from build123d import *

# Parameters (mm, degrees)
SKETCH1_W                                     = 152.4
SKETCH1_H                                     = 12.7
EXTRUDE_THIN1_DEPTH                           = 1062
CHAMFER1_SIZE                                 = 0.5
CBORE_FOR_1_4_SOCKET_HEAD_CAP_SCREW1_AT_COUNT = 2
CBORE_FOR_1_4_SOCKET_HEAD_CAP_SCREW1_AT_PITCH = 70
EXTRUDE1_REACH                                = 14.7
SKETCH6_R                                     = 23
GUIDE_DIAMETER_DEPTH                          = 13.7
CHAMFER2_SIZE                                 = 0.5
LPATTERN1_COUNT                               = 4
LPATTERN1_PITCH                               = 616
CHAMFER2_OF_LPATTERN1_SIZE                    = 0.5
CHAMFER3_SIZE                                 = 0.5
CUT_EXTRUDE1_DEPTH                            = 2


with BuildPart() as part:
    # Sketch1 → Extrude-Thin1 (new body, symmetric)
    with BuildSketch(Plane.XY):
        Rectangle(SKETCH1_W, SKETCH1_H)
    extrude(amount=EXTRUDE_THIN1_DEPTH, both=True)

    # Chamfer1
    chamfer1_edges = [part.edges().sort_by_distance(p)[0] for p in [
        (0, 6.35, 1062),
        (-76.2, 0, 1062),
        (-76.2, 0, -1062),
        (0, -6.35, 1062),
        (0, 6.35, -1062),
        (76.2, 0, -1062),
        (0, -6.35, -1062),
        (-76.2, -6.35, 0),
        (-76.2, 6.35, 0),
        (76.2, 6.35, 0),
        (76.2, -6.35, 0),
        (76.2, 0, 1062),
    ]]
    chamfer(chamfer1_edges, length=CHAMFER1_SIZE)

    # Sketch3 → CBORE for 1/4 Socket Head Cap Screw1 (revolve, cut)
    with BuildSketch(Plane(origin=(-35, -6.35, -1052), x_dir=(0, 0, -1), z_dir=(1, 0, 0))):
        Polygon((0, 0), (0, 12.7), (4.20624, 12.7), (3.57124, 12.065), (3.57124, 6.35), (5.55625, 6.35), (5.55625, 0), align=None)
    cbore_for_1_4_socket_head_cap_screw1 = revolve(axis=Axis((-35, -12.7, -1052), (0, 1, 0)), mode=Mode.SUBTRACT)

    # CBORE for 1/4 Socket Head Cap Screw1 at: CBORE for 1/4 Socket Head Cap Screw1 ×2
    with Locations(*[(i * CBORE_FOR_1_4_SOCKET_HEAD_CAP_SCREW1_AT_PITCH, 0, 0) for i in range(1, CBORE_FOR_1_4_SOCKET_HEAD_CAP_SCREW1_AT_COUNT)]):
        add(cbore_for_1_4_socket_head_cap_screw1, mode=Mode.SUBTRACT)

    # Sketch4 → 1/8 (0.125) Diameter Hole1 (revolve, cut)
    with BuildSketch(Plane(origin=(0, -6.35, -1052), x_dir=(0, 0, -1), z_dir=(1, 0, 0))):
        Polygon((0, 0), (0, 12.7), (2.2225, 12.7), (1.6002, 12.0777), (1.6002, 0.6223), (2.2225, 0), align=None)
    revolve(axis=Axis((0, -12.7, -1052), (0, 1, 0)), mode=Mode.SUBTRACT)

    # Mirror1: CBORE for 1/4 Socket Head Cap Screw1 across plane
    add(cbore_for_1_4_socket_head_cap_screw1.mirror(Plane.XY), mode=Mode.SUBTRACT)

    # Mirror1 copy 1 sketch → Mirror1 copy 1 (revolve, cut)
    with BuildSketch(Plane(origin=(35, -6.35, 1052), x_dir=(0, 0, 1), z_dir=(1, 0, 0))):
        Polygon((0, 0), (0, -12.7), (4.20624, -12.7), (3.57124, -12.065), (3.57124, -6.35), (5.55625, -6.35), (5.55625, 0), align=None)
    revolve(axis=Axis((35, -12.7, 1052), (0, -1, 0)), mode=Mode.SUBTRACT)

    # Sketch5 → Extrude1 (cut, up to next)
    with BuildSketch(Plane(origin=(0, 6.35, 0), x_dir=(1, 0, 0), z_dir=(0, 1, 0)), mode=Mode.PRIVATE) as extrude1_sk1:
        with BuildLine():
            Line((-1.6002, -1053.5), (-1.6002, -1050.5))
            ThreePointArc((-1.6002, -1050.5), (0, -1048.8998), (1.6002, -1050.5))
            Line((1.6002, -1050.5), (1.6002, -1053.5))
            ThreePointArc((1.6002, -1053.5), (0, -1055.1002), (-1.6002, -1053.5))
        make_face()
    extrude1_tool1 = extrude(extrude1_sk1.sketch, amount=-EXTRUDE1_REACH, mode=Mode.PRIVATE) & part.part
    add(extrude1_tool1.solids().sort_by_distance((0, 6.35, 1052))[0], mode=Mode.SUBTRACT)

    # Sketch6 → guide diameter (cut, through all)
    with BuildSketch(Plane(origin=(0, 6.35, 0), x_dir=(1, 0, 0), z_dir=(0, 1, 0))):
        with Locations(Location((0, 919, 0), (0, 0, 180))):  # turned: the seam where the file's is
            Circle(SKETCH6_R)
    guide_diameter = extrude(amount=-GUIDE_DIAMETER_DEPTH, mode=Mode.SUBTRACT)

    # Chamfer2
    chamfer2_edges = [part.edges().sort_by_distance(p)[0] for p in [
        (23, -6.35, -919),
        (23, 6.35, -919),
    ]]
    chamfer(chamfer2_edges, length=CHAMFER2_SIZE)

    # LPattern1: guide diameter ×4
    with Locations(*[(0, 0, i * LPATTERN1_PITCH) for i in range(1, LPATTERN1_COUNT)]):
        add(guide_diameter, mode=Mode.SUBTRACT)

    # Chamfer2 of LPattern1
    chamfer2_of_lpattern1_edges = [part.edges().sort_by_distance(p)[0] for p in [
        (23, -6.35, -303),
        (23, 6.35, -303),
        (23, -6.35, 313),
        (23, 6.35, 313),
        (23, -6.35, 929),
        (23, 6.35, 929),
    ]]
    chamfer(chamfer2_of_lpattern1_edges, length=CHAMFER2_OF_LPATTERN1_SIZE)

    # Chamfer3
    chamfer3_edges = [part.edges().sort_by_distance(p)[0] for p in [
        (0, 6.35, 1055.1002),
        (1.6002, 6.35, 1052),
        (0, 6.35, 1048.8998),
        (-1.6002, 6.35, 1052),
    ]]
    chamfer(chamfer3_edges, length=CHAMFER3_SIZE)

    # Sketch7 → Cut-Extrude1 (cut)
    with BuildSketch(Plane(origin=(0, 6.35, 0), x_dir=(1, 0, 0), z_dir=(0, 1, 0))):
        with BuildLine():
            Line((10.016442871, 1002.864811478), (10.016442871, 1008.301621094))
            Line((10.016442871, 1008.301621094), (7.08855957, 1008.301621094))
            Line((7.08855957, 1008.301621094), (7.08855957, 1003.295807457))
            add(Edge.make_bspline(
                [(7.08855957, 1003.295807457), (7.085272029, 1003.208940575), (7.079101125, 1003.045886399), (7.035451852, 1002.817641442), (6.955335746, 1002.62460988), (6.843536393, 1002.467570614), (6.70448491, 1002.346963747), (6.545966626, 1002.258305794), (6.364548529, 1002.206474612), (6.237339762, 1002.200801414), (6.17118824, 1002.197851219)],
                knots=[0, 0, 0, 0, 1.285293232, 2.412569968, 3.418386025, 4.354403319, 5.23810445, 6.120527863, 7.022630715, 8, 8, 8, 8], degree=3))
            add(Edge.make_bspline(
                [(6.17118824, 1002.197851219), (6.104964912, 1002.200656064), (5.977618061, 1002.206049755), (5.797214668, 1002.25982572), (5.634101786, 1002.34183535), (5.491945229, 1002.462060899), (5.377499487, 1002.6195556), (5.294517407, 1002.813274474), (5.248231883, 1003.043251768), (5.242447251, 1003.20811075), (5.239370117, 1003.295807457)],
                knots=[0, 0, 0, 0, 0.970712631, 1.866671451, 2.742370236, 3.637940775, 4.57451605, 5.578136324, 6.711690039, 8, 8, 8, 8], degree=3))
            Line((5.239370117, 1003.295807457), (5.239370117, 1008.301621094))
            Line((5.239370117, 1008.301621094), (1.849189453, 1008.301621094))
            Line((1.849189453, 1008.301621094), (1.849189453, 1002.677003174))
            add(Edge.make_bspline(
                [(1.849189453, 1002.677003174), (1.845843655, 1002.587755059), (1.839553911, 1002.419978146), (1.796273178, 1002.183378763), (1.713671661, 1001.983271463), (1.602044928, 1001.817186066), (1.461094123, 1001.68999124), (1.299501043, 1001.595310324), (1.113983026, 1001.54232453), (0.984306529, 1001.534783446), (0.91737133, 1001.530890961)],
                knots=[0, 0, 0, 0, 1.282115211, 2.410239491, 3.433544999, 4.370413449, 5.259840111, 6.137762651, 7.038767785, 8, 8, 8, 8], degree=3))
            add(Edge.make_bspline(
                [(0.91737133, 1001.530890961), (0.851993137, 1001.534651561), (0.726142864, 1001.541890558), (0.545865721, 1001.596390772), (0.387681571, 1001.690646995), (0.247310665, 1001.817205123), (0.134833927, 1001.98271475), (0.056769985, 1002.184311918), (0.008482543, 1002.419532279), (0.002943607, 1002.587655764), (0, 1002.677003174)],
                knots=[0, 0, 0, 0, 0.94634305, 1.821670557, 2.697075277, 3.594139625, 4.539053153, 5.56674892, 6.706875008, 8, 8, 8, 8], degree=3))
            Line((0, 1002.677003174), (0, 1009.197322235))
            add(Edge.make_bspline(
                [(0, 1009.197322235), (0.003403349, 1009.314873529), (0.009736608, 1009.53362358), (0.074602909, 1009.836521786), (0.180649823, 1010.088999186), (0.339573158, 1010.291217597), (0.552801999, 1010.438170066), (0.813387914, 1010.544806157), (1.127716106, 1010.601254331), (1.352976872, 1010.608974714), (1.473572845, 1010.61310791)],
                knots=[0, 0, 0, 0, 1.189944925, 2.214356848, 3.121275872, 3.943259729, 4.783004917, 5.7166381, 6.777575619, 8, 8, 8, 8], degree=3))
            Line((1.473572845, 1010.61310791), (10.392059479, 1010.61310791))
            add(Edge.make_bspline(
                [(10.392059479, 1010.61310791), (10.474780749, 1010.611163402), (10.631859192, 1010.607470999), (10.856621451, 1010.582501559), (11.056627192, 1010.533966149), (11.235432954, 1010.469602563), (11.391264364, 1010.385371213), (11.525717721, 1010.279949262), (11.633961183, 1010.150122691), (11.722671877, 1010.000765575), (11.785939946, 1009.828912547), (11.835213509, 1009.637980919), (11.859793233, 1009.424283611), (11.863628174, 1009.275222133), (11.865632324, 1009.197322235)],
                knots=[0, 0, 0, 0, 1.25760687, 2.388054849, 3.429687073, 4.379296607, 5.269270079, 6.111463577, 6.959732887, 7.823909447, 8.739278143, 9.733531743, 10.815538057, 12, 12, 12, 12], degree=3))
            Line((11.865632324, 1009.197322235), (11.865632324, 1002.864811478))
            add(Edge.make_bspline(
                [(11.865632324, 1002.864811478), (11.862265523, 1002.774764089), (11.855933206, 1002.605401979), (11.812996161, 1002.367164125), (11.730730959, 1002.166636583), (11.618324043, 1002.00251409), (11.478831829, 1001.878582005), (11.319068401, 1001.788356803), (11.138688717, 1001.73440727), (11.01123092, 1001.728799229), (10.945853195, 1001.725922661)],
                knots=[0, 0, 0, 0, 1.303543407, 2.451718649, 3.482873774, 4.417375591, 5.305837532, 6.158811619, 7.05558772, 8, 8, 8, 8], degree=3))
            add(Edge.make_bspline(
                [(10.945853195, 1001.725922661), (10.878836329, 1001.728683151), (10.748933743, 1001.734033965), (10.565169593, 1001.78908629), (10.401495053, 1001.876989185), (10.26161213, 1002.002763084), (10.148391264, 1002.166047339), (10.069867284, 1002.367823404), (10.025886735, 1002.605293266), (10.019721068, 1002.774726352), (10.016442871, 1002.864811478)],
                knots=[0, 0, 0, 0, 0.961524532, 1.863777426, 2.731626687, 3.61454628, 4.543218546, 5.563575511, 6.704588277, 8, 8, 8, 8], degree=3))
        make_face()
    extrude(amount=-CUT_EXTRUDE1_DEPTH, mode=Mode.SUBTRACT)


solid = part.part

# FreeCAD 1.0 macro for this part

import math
import FreeCAD as App
import Part
import Sketcher
Q = App.Units.Quantity


def edges_at(feature, points):
    """Names of the edges that pass closest to the given points."""
    edges = feature.Shape.Edges
    near = lambda p: min(range(len(edges)), key=lambda i: edges[i].distToShape(Part.Vertex(*p))[0])
    return sorted({f"Edge{near(p) + 1}" for p in points})


def add_polygon(sketch, points):
    """Adds a closed chain of lines whose ends are joined by coincident constraints."""
    first, n = sketch.GeometryCount, len(points)
    for a, b in zip(points, points[1:] + points[:1]):
        sketch.addGeometry(Part.LineSegment(App.Vector(*a, 0), App.Vector(*b, 0)), False)
    for i in range(n):
        sketch.addConstraint(Sketcher.Constraint("Coincident", first + i, 2, first + (i + 1) % n, 1))

doc = App.newDocument("Part")
body = doc.addObject("PartDesign::Body", "Body")

sketch1 = doc.addObject("Sketcher::SketchObject", "Sketch")
body.addObject(sketch1)
sketch1.AttachmentSupport = (doc.XY_Plane, [""])
sketch1.MapMode = "FlatFace"
add_polygon(sketch1, [(-76, 6), (-76, -6), (76, -6), (76, 6)])
sketch1.addConstraint(Sketcher.Constraint("Vertical", 0))
sketch1.addConstraint(Sketcher.Constraint("Horizontal", 1))
sketch1.addConstraint(Sketcher.Constraint("Vertical", 2))
sketch1.addConstraint(Sketcher.Constraint("Horizontal", 3))
sketch1.addConstraint(Sketcher.Constraint("Symmetric", 0, 2, 2, 2, -1, 1))
sketch1.addConstraint(Sketcher.Constraint("DistanceX", 1, 1, 1, 2, Q("6 in")))
sketch1.addConstraint(Sketcher.Constraint("DistanceY", 0, 2, 0, 1, Q("0.5 in")))
pad1 = doc.addObject("PartDesign::Pad", "Pad")
body.addObject(pad1)
pad1.Profile = sketch1
pad1.Length = 2124
pad1.Midplane = True
doc.recompute()

chamfer = doc.addObject("PartDesign::Chamfer", "Chamfer")
body.addObject(chamfer)
chamfer.Base = (pad1, ["Edge1"])
chamfer.UseAllEdges = True
chamfer.Size = 0.5

sketch2 = doc.addObject("Sketcher::SketchObject", "Sketch001")
body.addObject(sketch2)
sketch2.AttachmentSupport = (doc.YZ_Plane, [""])
sketch2.MapMode = "FlatFace"
sketch2.AttachmentOffset = App.Placement(App.Vector(0, 0, -35), App.Rotation())
add_polygon(sketch2, [(6.3, -1052), (-6.3, -1052), (-6.3, -1057.6), (0, -1057.6), (0, -1055.6), (5.7, -1055.6), (6.3, -1056.2)])
sketch2.addGeometry(Part.LineSegment(App.Vector(-6.3, -1052, 0), App.Vector(6.3, -1052, 0)), True)
sketch2.addConstraint(Sketcher.Constraint("Horizontal", 0))
sketch2.addConstraint(Sketcher.Constraint("Vertical", 1))
sketch2.addConstraint(Sketcher.Constraint("Horizontal", 2))
sketch2.addConstraint(Sketcher.Constraint("Vertical", 3))
sketch2.addConstraint(Sketcher.Constraint("Horizontal", 4))
sketch2.addConstraint(Sketcher.Constraint("Vertical", 6))
sketch2.addConstraint(Sketcher.Constraint("Horizontal", 7))
sketch2.addConstraint(Sketcher.Constraint("Coincident", 7, 1, 0, 2))
sketch2.addConstraint(Sketcher.Constraint("PointOnObject", 2, 2, -2))
sketch2.addConstraint(Sketcher.Constraint("Vertical", 5, 2, 7, 2))
sketch2.addConstraint(Sketcher.Constraint("DistanceX", 0, 2, 0, 1, Q("0.5 in")))
sketch2.addConstraint(Sketcher.Constraint("Angle", 5, Q("-45 deg")))
sketch2.addConstraint(Sketcher.Constraint("DistanceX", 2, 1, 2, 2, Q("0.25 in")))
sketch2.addConstraint(Sketcher.Constraint("DistanceX", 4, 1, 4, 2, Q("0.225 in")))
sketch2.addConstraint(Sketcher.Constraint("DistanceY", 1, 2, 1, 1, Q("0.21875 in")))
sketch2.addConstraint(Sketcher.Constraint("DistanceY", 6, 1, 6, 2, Q("0.1656 in")))
sketch2.addConstraint(Sketcher.Constraint("DistanceY", 0, 2, -1, 1, Q("1052 mm")))
groove = doc.addObject("PartDesign::Groove", "Groove")
body.addObject(groove)
groove.Profile = sketch2
groove.ReferenceAxis = (sketch2, ["Axis0"])
groove.Angle = 360
doc.recompute()

linearpattern = doc.addObject("PartDesign::LinearPattern", "LinearPattern")
body.addObject(linearpattern)
linearpattern.Originals = [groove]
linearpattern.Direction = (doc.X_Axis, [""])
linearpattern.Mode = "offset"
linearpattern.Offset = 70
linearpattern.Occurrences = 2
body.Tip = linearpattern

sketch3 = doc.addObject("Sketcher::SketchObject", "Sketch002")
body.addObject(sketch3)
sketch3.AttachmentSupport = (doc.YZ_Plane, [""])
sketch3.MapMode = "FlatFace"
add_polygon(sketch3, [(6.3, -1052), (-6.3, -1052), (-6.3, -1054.2), (-5.7, -1053.6), (5.7, -1053.6), (6.3, -1054.2)])
sketch3.addGeometry(Part.LineSegment(App.Vector(-6.3, -1052, 0), App.Vector(6.3, -1052, 0)), True)
sketch3.addConstraint(Sketcher.Constraint("Horizontal", 0))
sketch3.addConstraint(Sketcher.Constraint("Vertical", 1))
sketch3.addConstraint(Sketcher.Constraint("Horizontal", 3))
sketch3.addConstraint(Sketcher.Constraint("Vertical", 5))
sketch3.addConstraint(Sketcher.Constraint("Horizontal", 6))
sketch3.addConstraint(Sketcher.Constraint("Coincident", 6, 1, 0, 2))
sketch3.addConstraint(Sketcher.Constraint("Symmetric", 1, 2, 4, 2, -2))
sketch3.addConstraint(Sketcher.Constraint("Perpendicular", 2, 4))
sketch3.addConstraint(Sketcher.Constraint("Vertical", 4, 2, 6, 2))
sketch3.addConstraint(Sketcher.Constraint("Equal", 2, 4))
sketch3.addConstraint(Sketcher.Constraint("DistanceX", 0, 2, 0, 1, Q("0.5 in")))
sketch3.addConstraint(Sketcher.Constraint("DistanceX", 3, 1, 3, 2, Q("0.451 in")))
sketch3.addConstraint(Sketcher.Constraint("DistanceY", 1, 2, 1, 1, Q("0.0875 in")))
sketch3.addConstraint(Sketcher.Constraint("DistanceY", 0, 2, -1, 1, Q("1052 mm")))
groove2 = doc.addObject("PartDesign::Groove", "Groove001")
body.addObject(groove2)
groove2.Profile = sketch3
groove2.ReferenceAxis = (sketch3, ["Axis0"])
groove2.Angle = 360
doc.recompute()

mirrored = doc.addObject("PartDesign::Mirrored", "Mirrored")
body.addObject(mirrored)
mirrored.Originals = [groove]
mirrored.MirrorPlane = (doc.XY_Plane, [""])
body.Tip = mirrored

sketch4 = doc.addObject("Sketcher::SketchObject", "Sketch003")
body.addObject(sketch4)
sketch4.AttachmentSupport = (doc.YZ_Plane, [""])
sketch4.MapMode = "FlatFace"
sketch4.AttachmentOffset = App.Placement(App.Vector(0, 0, 35), App.Rotation())
add_polygon(sketch4, [(-6.3, 1052), (6.3, 1052), (6.3, 1056.2), (5.7, 1055.6), (0, 1055.6), (0, 1057.6), (-6.3, 1057.6)])
sketch4.addGeometry(Part.LineSegment(App.Vector(6.3, 1052, 0), App.Vector(-6.3, 1052, 0)), True)
sketch4.addConstraint(Sketcher.Constraint("Horizontal", 0))
sketch4.addConstraint(Sketcher.Constraint("Vertical", 1))
sketch4.addConstraint(Sketcher.Constraint("Horizontal", 3))
sketch4.addConstraint(Sketcher.Constraint("Vertical", 4))
sketch4.addConstraint(Sketcher.Constraint("Horizontal", 5))
sketch4.addConstraint(Sketcher.Constraint("Vertical", 6))
sketch4.addConstraint(Sketcher.Constraint("Horizontal", 7))
sketch4.addConstraint(Sketcher.Constraint("Coincident", 7, 1, 0, 2))
sketch4.addConstraint(Sketcher.Constraint("PointOnObject", 3, 2, -2))
sketch4.addConstraint(Sketcher.Constraint("Vertical", 5, 2, 7, 2))
sketch4.addConstraint(Sketcher.Constraint("DistanceX", 0, 1, 0, 2, Q("0.5 in")))
sketch4.addConstraint(Sketcher.Constraint("Angle", 2, Q("-135 deg")))
sketch4.addConstraint(Sketcher.Constraint("DistanceX", 5, 2, 5, 1, Q("0.25 in")))
sketch4.addConstraint(Sketcher.Constraint("DistanceX", 3, 2, 3, 1, Q("0.225 in")))
sketch4.addConstraint(Sketcher.Constraint("DistanceY", 6, 2, 6, 1, Q("0.21875 in")))
sketch4.addConstraint(Sketcher.Constraint("DistanceY", 1, 1, 1, 2, Q("0.1656 in")))
sketch4.addConstraint(Sketcher.Constraint("DistanceY", -1, 1, 0, 2, Q("1052 mm")))
groove3 = doc.addObject("PartDesign::Groove", "Groove002")
body.addObject(groove3)
groove3.Profile = sketch4
groove3.ReferenceAxis = (sketch4, ["Axis0"])
groove3.Angle = 360

sketch5 = doc.addObject("Sketcher::SketchObject", "Sketch004")
body.addObject(sketch5)
sketch5.AttachmentSupport = (doc.XZ_Plane, [""])
sketch5.MapMode = "FlatFace"
sketch5.AttachmentOffset = App.Placement(App.Vector(0, 0, -0.25 * 25.4), App.Rotation())
sketch5.addGeometry(Part.LineSegment(App.Vector(-1.6, 1050.5, 0), App.Vector(-1.6, 1053.5, 0)), False)
sketch5.addGeometry(Part.ArcOfCircle(Part.Circle(App.Vector(0, 1053.5, 0), App.Vector(0, 0, 1), 1.6), math.radians(0), math.radians(180)), False)
sketch5.addGeometry(Part.LineSegment(App.Vector(1.6, 1053.5, 0), App.Vector(1.6, 1050.5, 0)), False)
sketch5.addGeometry(Part.ArcOfCircle(Part.Circle(App.Vector(0, 1050.5, 0), App.Vector(0, 0, 1), 1.6), math.radians(180), math.radians(360)), False)
sketch5.addConstraint(Sketcher.Constraint("Tangent", 0, 2, 1, 2))
sketch5.addConstraint(Sketcher.Constraint("Tangent", 1, 1, 2, 1))
sketch5.addConstraint(Sketcher.Constraint("Tangent", 2, 2, 3, 2))
sketch5.addConstraint(Sketcher.Constraint("Tangent", 3, 1, 0, 1))
sketch5.addConstraint(Sketcher.Constraint("Vertical", 0))
sketch5.addConstraint(Sketcher.Constraint("Vertical", 2))
sketch5.addConstraint(Sketcher.Constraint("PointOnObject", 1, 3, -2))
sketch5.addConstraint(Sketcher.Constraint("Radius", 1, Q("0.063 in")))
sketch5.addConstraint(Sketcher.Constraint("DistanceY", 0, 1, 0, 2, Q("3 mm")))
sketch5.addConstraint(Sketcher.Constraint("DistanceY", -1, 1, 1, 3, Q("1053.5 mm")))
pocket1 = doc.addObject("PartDesign::Pocket", "Pocket")
body.addObject(pocket1)
pocket1.Profile = sketch5
pocket1.Type = "UpToFirst"
pocket1.Reversed = True

sketch6 = doc.addObject("Sketcher::SketchObject", "Sketch005")
body.addObject(sketch6)
sketch6.AttachmentSupport = (doc.XZ_Plane, [""])
sketch6.MapMode = "FlatFace"
sketch6.AttachmentOffset = App.Placement(App.Vector(0, 0, -0.25 * 25.4), App.Rotation())
sketch6.addGeometry(Part.Circle(App.Vector(0, -919, 0), App.Vector(0, 0, 1), 23), False)
sketch6.addConstraint(Sketcher.Constraint("PointOnObject", 0, 3, -2))
sketch6.addConstraint(Sketcher.Constraint("Diameter", 0, Q("46 mm")))
sketch6.addConstraint(Sketcher.Constraint("DistanceY", 0, 3, -1, 1, Q("919 mm")))
pocket2 = doc.addObject("PartDesign::Pocket", "Pocket001")
body.addObject(pocket2)
pocket2.Profile = sketch6
pocket2.Type = "ThroughAll"
pocket2.Reversed = True
doc.recompute()

chamfer2 = doc.addObject("PartDesign::Chamfer", "Chamfer001")
body.addObject(chamfer2)
chamfer2.Base = (pocket2, edges_at(pocket2, [(23, -6.35, -919), (23, 6.35, -919)]))
chamfer2.Size = 0.5
doc.recompute()

linearpattern2 = doc.addObject("PartDesign::LinearPattern", "LinearPattern001")
body.addObject(linearpattern2)
linearpattern2.Originals = [pocket2]
linearpattern2.Direction = (doc.Z_Axis, [""])
linearpattern2.Mode = "offset"
linearpattern2.Offset = 616
linearpattern2.Occurrences = 4
body.Tip = linearpattern2
doc.recompute()

chamfer3 = doc.addObject("PartDesign::Chamfer", "Chamfer002")
body.addObject(chamfer3)
chamfer3.Base = (linearpattern2, edges_at(linearpattern2, [
    (23, -6.35, -303),
    (23, 6.35, -303),
    (23, -6.35, 313),
    (23, 6.35, 313),
    (23, -6.35, 929),
    (23, 6.35, 929),
]))
chamfer3.Size = 0.5
doc.recompute()

chamfer4 = doc.addObject("PartDesign::Chamfer", "Chamfer003")
body.addObject(chamfer4)
chamfer4.Base = (chamfer3, edges_at(chamfer3, [
    (0, 6.35, 1055.1),
    (1.6, 6.35, 1052),
    (0, 6.35, 1048.9),
    (-1.6, 6.35, 1052),
]))
chamfer4.Size = 0.5

sketch7 = doc.addObject("Sketcher::SketchObject", "Sketch006")
body.addObject(sketch7)
sketch7.AttachmentSupport = (doc.XZ_Plane, [""])
sketch7.MapMode = "FlatFace"
sketch7.AttachmentOffset = App.Placement(App.Vector(0, 0, -0.25 * 25.4), App.Rotation())
sketch7.addGeometry(Part.LineSegment(App.Vector(10.016443, -1008.301621, 0), App.Vector(10.016443, -1002.864811, 0)), False)
sketch7.addGeometry(Part.BSplineCurve([App.Vector(10.945853, -1001.725923, 0), App.Vector(10.878836, -1001.728683, 0), App.Vector(10.748934, -1001.734034, 0), App.Vector(10.56517, -1001.789086, 0), App.Vector(10.401495, -1001.876989, 0), App.Vector(10.261612, -1002.002763, 0), App.Vector(10.148391, -1002.166047, 0), App.Vector(10.069867, -1002.367823, 0), App.Vector(10.025887, -1002.605293, 0), App.Vector(10.019721, -1002.774726, 0), App.Vector(10.016443, -1002.864811, 0)], [4, 1, 1, 1, 1, 1, 1, 1, 4], [0, 0.961524532, 1.863777426, 2.731626687, 3.61454628, 4.543218546, 5.563575511, 6.704588277, 8], False, 3, [1, 1, 1, 1, 1, 1, 1, 1, 1, 1, 1], False), False)
sketch7.addGeometry(Part.BSplineCurve([App.Vector(11.865632, -1002.864811, 0), App.Vector(11.862266, -1002.774764, 0), App.Vector(11.855933, -1002.605402, 0), App.Vector(11.812996, -1002.367164, 0), App.Vector(11.730731, -1002.166637, 0), App.Vector(11.618324, -1002.002514, 0), App.Vector(11.478832, -1001.878582, 0), App.Vector(11.319068, -1001.788357, 0), App.Vector(11.138689, -1001.734407, 0), App.Vector(11.011231, -1001.728799, 0), App.Vector(10.945853, -1001.725923, 0)], [4, 1, 1, 1, 1, 1, 1, 1, 4], [0, 1.303543407, 2.451718649, 3.482873774, 4.417375591, 5.305837532, 6.158811619, 7.05558772, 8], False, 3, [1, 1, 1, 1, 1, 1, 1, 1, 1, 1, 1], False), False)
sketch7.addGeometry(Part.LineSegment(App.Vector(11.865632, -1002.864811, 0), App.Vector(11.865632, -1009.197322, 0)), False)
sketch7.addGeometry(Part.BSplineCurve([App.Vector(10.392059, -1010.613108, 0), App.Vector(10.474781, -1010.611163, 0), App.Vector(10.631859, -1010.607471, 0), App.Vector(10.856621, -1010.582502, 0), App.Vector(11.056627, -1010.533966, 0), App.Vector(11.235433, -1010.469603, 0), App.Vector(11.391264, -1010.385371, 0), App.Vector(11.525718, -1010.279949, 0), App.Vector(11.633961, -1010.150123, 0), App.Vector(11.722672, -1010.000766, 0), App.Vector(11.78594, -1009.828913, 0), App.Vector(11.835214, -1009.637981, 0), App.Vector(11.859793, -1009.424284, 0), App.Vector(11.863628, -1009.275222, 0), App.Vector(11.865632, -1009.197322, 0)], [4, 1, 1, 1, 1, 1, 1, 1, 1, 1, 1, 1, 4], [0, 1.25760687, 2.388054849, 3.429687073, 4.379296607, 5.269270079, 6.111463577, 6.959732887, 7.823909447, 8.739278143, 9.733531743, 10.815538057, 12], False, 3, [1, 1, 1, 1, 1, 1, 1, 1, 1, 1, 1, 1, 1, 1, 1], False), False)
sketch7.addGeometry(Part.LineSegment(App.Vector(10.392059, -1010.613108, 0), App.Vector(1.473573, -1010.613108, 0)), False)
sketch7.addGeometry(Part.BSplineCurve([App.Vector(0, -1009.197322, 0), App.Vector(0.003403, -1009.314874, 0), App.Vector(0.009737, -1009.533624, 0), App.Vector(0.074603, -1009.836522, 0), App.Vector(0.18065, -1010.088999, 0), App.Vector(0.339573, -1010.291218, 0), App.Vector(0.552802, -1010.43817, 0), App.Vector(0.813388, -1010.544806, 0), App.Vector(1.127716, -1010.601254, 0), App.Vector(1.352977, -1010.608975, 0), App.Vector(1.473573, -1010.613108, 0)], [4, 1, 1, 1, 1, 1, 1, 1, 4], [0, 1.189944925, 2.214356848, 3.121275872, 3.943259729, 4.783004917, 5.7166381, 6.777575619, 8], False, 3, [1, 1, 1, 1, 1, 1, 1, 1, 1, 1, 1], False), False)
sketch7.addGeometry(Part.LineSegment(App.Vector(0, -1009.197322, 0), App.Vector(0, -1002.677003, 0)), False)
sketch7.addGeometry(Part.BSplineCurve([App.Vector(0.917371, -1001.530891, 0), App.Vector(0.851993, -1001.534652, 0), App.Vector(0.726143, -1001.541891, 0), App.Vector(0.545866, -1001.596391, 0), App.Vector(0.387682, -1001.690647, 0), App.Vector(0.247311, -1001.817205, 0), App.Vector(0.134834, -1001.982715, 0), App.Vector(0.05677, -1002.184312, 0), App.Vector(0.008483, -1002.419532, 0), App.Vector(0.002944, -1002.587656, 0), App.Vector(0, -1002.677003, 0)], [4, 1, 1, 1, 1, 1, 1, 1, 4], [0, 0.94634305, 1.821670557, 2.697075277, 3.594139625, 4.539053153, 5.56674892, 6.706875008, 8], False, 3, [1, 1, 1, 1, 1, 1, 1, 1, 1, 1, 1], False), False)
sketch7.addGeometry(Part.BSplineCurve([App.Vector(1.849189, -1002.677003, 0), App.Vector(1.845844, -1002.587755, 0), App.Vector(1.839554, -1002.419978, 0), App.Vector(1.796273, -1002.183379, 0), App.Vector(1.713672, -1001.983271, 0), App.Vector(1.602045, -1001.817186, 0), App.Vector(1.461094, -1001.689991, 0), App.Vector(1.299501, -1001.59531, 0), App.Vector(1.113983, -1001.542325, 0), App.Vector(0.984307, -1001.534783, 0), App.Vector(0.917371, -1001.530891, 0)], [4, 1, 1, 1, 1, 1, 1, 1, 4], [0, 1.282115211, 2.410239491, 3.433544999, 4.370413449, 5.259840111, 6.137762651, 7.038767785, 8], False, 3, [1, 1, 1, 1, 1, 1, 1, 1, 1, 1, 1], False), False)
sketch7.addGeometry(Part.LineSegment(App.Vector(1.849189, -1002.677003, 0), App.Vector(1.849189, -1008.301621, 0)), False)
sketch7.addGeometry(Part.LineSegment(App.Vector(1.849189, -1008.301621, 0), App.Vector(5.23937, -1008.301621, 0)), False)
sketch7.addGeometry(Part.LineSegment(App.Vector(5.23937, -1008.301621, 0), App.Vector(5.23937, -1003.295807, 0)), False)
sketch7.addGeometry(Part.BSplineCurve([App.Vector(6.171188, -1002.197851, 0), App.Vector(6.104965, -1002.200656, 0), App.Vector(5.977618, -1002.20605, 0), App.Vector(5.797215, -1002.259826, 0), App.Vector(5.634102, -1002.341835, 0), App.Vector(5.491945, -1002.462061, 0), App.Vector(5.377499, -1002.619556, 0), App.Vector(5.294517, -1002.813274, 0), App.Vector(5.248232, -1003.043252, 0), App.Vector(5.242447, -1003.208111, 0), App.Vector(5.23937, -1003.295807, 0)], [4, 1, 1, 1, 1, 1, 1, 1, 4], [0, 0.970712631, 1.866671451, 2.742370236, 3.637940775, 4.57451605, 5.578136324, 6.711690039, 8], False, 3, [1, 1, 1, 1, 1, 1, 1, 1, 1, 1, 1], False), False)
sketch7.addGeometry(Part.BSplineCurve([App.Vector(7.08856, -1003.295807, 0), App.Vector(7.085272, -1003.208941, 0), App.Vector(7.079101, -1003.045886, 0), App.Vector(7.035452, -1002.817641, 0), App.Vector(6.955336, -1002.62461, 0), App.Vector(6.843536, -1002.467571, 0), App.Vector(6.704485, -1002.346964, 0), App.Vector(6.545967, -1002.258306, 0), App.Vector(6.364549, -1002.206475, 0), App.Vector(6.23734, -1002.200801, 0), App.Vector(6.171188, -1002.197851, 0)], [4, 1, 1, 1, 1, 1, 1, 1, 4], [0, 1.285293232, 2.412569968, 3.418386025, 4.354403319, 5.23810445, 6.120527863, 7.022630715, 8], False, 3, [1, 1, 1, 1, 1, 1, 1, 1, 1, 1, 1], False), False)
sketch7.addGeometry(Part.LineSegment(App.Vector(7.08856, -1003.295807, 0), App.Vector(7.08856, -1008.301621, 0)), False)
sketch7.addGeometry(Part.LineSegment(App.Vector(7.08856, -1008.301621, 0), App.Vector(10.016443, -1008.301621, 0)), False)
sketch7.addConstraint(Sketcher.Constraint("Block", 1))
sketch7.addConstraint(Sketcher.Constraint("Block", 2))
sketch7.addConstraint(Sketcher.Constraint("Block", 4))
sketch7.addConstraint(Sketcher.Constraint("Block", 6))
sketch7.addConstraint(Sketcher.Constraint("Block", 8))
sketch7.addConstraint(Sketcher.Constraint("Block", 9))
sketch7.addConstraint(Sketcher.Constraint("Block", 13))
sketch7.addConstraint(Sketcher.Constraint("Block", 14))
sketch7.addConstraint(Sketcher.Constraint("Coincident", 0, 2, 1, 2))
sketch7.addConstraint(Sketcher.Constraint("Coincident", 2, 1, 3, 1))
sketch7.addConstraint(Sketcher.Constraint("Coincident", 3, 2, 4, 2))
sketch7.addConstraint(Sketcher.Constraint("Coincident", 4, 1, 5, 1))
sketch7.addConstraint(Sketcher.Constraint("Coincident", 5, 2, 6, 2))
sketch7.addConstraint(Sketcher.Constraint("Coincident", 6, 1, 7, 1))
sketch7.addConstraint(Sketcher.Constraint("Coincident", 7, 2, 8, 2))
sketch7.addConstraint(Sketcher.Constraint("Coincident", 9, 1, 10, 1))
sketch7.addConstraint(Sketcher.Constraint("Coincident", 10, 2, 11, 1))
sketch7.addConstraint(Sketcher.Constraint("Coincident", 11, 2, 12, 1))
sketch7.addConstraint(Sketcher.Constraint("Coincident", 12, 2, 13, 2))
sketch7.addConstraint(Sketcher.Constraint("Coincident", 14, 1, 15, 1))
sketch7.addConstraint(Sketcher.Constraint("Coincident", 15, 2, 16, 1))
sketch7.addConstraint(Sketcher.Constraint("Coincident", 16, 2, 0, 1))
sketch7.addConstraint(Sketcher.Constraint("Vertical", 0))
sketch7.addConstraint(Sketcher.Constraint("Vertical", 10))
sketch7.addConstraint(Sketcher.Constraint("Horizontal", 11))
sketch7.addConstraint(Sketcher.Constraint("Vertical", 12))
sketch7.addConstraint(Sketcher.Constraint("Vertical", 15))
sketch7.addConstraint(Sketcher.Constraint("Horizontal", 16))
sketch7.addConstraint(Sketcher.Constraint("Horizontal", 11, 2, 15, 2))
sketch7.addConstraint(Sketcher.Constraint("DistanceY", 0, 1, 0, 2, Q("5.43681 mm")))
pocket3 = doc.addObject("PartDesign::Pocket", "Pocket002")
body.addObject(pocket3)
pocket3.Profile = sketch7
pocket3.Length = 2
pocket3.Reversed = True

doc.recompute()
